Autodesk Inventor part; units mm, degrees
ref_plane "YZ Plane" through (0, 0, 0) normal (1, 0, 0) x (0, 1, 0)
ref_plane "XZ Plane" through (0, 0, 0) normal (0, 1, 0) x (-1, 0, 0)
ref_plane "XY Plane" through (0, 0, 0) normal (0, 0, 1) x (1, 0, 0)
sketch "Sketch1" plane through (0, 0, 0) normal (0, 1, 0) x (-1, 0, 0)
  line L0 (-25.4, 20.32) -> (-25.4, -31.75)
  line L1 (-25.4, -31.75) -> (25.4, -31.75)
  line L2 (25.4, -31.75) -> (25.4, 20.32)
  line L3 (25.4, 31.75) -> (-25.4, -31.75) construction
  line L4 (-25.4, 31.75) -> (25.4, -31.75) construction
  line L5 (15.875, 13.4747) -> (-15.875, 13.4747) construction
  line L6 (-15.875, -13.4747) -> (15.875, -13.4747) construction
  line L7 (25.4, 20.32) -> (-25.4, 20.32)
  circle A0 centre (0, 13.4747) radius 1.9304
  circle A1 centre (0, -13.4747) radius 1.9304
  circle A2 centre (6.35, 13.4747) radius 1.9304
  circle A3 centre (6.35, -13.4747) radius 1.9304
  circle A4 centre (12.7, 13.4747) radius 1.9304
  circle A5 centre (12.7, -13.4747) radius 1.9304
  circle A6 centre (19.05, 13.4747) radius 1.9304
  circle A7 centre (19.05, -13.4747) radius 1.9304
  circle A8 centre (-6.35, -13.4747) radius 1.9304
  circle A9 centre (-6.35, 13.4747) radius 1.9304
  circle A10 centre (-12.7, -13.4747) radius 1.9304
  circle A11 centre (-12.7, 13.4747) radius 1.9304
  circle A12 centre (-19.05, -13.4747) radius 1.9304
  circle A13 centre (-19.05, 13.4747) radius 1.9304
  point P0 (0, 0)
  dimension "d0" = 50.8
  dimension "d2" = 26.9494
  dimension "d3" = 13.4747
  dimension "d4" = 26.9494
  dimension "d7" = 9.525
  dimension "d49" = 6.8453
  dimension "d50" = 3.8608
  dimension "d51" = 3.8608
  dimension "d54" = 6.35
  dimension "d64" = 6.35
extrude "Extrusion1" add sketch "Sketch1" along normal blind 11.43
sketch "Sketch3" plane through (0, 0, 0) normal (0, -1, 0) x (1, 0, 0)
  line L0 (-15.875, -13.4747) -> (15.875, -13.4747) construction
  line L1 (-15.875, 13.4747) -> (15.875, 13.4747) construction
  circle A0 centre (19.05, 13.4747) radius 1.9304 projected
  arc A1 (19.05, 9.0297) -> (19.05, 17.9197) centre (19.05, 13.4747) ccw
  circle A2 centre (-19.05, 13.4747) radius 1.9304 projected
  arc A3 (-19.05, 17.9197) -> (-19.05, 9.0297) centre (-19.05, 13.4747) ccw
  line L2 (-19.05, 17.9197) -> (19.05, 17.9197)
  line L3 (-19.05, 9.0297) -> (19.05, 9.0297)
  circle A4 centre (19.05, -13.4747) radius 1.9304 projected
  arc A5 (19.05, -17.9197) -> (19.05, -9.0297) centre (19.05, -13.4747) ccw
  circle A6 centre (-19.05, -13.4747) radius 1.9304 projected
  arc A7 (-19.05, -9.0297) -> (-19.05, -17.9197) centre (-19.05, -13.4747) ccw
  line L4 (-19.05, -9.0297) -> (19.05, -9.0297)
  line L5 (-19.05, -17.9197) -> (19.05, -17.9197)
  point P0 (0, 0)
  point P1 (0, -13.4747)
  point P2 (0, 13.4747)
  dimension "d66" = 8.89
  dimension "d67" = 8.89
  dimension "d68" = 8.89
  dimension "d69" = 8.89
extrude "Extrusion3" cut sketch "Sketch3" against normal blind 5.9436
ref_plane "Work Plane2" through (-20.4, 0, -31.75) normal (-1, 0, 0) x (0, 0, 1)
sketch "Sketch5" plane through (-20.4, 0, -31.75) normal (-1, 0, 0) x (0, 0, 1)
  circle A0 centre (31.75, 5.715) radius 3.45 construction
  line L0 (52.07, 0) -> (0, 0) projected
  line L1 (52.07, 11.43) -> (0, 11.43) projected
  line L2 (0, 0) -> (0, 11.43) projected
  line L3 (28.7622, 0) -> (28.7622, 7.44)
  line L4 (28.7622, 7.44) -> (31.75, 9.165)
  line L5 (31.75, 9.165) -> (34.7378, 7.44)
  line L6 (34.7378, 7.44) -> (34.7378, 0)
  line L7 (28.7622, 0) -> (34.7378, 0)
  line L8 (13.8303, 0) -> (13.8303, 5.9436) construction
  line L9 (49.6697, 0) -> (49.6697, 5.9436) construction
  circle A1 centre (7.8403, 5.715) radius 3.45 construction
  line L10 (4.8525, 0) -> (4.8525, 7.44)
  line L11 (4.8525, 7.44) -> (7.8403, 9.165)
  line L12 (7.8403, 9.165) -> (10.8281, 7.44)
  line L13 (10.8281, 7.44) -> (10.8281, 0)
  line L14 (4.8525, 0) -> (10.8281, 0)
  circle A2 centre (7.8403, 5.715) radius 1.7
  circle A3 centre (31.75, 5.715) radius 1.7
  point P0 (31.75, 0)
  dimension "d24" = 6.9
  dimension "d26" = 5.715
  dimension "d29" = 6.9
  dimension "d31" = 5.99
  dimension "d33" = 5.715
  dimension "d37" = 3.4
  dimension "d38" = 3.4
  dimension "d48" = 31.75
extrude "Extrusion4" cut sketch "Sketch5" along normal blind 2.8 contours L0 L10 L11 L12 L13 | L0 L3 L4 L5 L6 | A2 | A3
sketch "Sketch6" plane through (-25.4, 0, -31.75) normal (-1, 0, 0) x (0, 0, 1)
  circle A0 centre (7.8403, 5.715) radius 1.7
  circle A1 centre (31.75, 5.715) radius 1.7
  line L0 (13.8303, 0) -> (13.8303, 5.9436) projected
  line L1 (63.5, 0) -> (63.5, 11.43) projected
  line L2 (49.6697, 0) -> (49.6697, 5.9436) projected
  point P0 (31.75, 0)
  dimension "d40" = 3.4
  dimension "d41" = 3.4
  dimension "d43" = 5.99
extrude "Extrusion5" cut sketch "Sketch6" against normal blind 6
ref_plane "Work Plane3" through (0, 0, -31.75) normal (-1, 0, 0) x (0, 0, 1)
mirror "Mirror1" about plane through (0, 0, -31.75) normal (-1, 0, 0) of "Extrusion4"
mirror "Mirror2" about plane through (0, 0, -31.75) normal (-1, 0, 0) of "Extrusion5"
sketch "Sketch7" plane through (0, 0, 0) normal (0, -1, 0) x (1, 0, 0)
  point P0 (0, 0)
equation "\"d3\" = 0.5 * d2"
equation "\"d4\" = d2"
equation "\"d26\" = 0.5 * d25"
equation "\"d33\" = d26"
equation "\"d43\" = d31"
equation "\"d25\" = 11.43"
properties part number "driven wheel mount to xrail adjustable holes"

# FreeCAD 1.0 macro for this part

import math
import FreeCAD as App
import Part
import Sketcher

V = App.Vector
Q = App.Units.Quantity

doc = App.newDocument("Part")
params = doc.addObject("Spreadsheet::Sheet", "Params")
for row, (alias, value) in enumerate([
    ("sketch1_width", "2 in"),
    ("sketch1_diameter", "0.152 in"),
    ("sketch1_height", "2.05 in"),
    ("pad1_length", "0.45 in"),
    ("sketch2_radius", "0.175 in"),
    ("sketch2_diameter", "0.152 in"),
    ("sketch2_width", "1.5 in"),
    ("pocket1_length", "0.234 in"),
    ("pocket2_length", "2.8 mm"),
    ("pocket3_length", "6 mm"),
], start=1):
    params.set(f"A{row}", alias)
    params.set(f"B{row}", "=" + value)
    params.setAlias(f"B{row}", alias)

body = doc.addObject("PartDesign::Body", "Body")

# Sketch on XZ plane
sketch1 = body.newObject("Sketcher::SketchObject", "Sketch")
sketch1.AttachmentSupport = (doc.getObject("XZ_Plane"), [""])
sketch1.MapMode = "FlatFace"
sketch1.addGeometry(Part.LineSegment(V(-25.4, 20.3, 0), V(25.4, 20.3, 0)), False)
sketch1.addGeometry(Part.LineSegment(V(25.4, 20.3, 0), V(25.4, -31.8, 0)), False)
sketch1.addGeometry(Part.LineSegment(V(25.4, -31.8, 0), V(-25.4, -31.8, 0)), False)
sketch1.addGeometry(Part.LineSegment(V(-25.4, -31.8, 0), V(-25.4, 20.3, 0)), False)
sketch1.addGeometry(Part.Circle(V(19.1, -13.5, 0), V(0, 0, 1), 1.9), False)
sketch1.addGeometry(Part.Circle(V(12.7, -13.5, 0), V(0, 0, 1), 1.9), False)
sketch1.addGeometry(Part.Circle(V(6.3, -13.5, 0), V(0, 0, 1), 1.9), False)
sketch1.addGeometry(Part.Circle(V(0, -13.5, 0), V(0, 0, 1), 1.9), False)
sketch1.addGeometry(Part.Circle(V(-6.3, -13.5, 0), V(0, 0, 1), 1.9), False)
sketch1.addGeometry(Part.Circle(V(-12.7, -13.5, 0), V(0, 0, 1), 1.9), False)
sketch1.addGeometry(Part.Circle(V(-19.1, -13.5, 0), V(0, 0, 1), 1.9), False)
sketch1.addGeometry(Part.Circle(V(19.1, 13.5, 0), V(0, 0, 1), 1.9), False)
sketch1.addGeometry(Part.Circle(V(12.7, 13.5, 0), V(0, 0, 1), 1.9), False)
sketch1.addGeometry(Part.Circle(V(6.3, 13.5, 0), V(0, 0, 1), 1.9), False)
sketch1.addGeometry(Part.Circle(V(0, 13.5, 0), V(0, 0, 1), 1.9), False)
sketch1.addGeometry(Part.Circle(V(-6.3, 13.5, 0), V(0, 0, 1), 1.9), False)
sketch1.addGeometry(Part.Circle(V(-12.7, 13.5, 0), V(0, 0, 1), 1.9), False)
sketch1.addGeometry(Part.Circle(V(-19.1, 13.5, 0), V(0, 0, 1), 1.9), False)
sketch1.addConstraint(Sketcher.Constraint("Coincident", 0, 2, 1, 1))
sketch1.addConstraint(Sketcher.Constraint("Coincident", 1, 2, 2, 1))
sketch1.addConstraint(Sketcher.Constraint("Coincident", 2, 2, 3, 1))
sketch1.addConstraint(Sketcher.Constraint("Coincident", 3, 2, 0, 1))
sketch1.addConstraint(Sketcher.Constraint("Horizontal", 0))
sketch1.addConstraint(Sketcher.Constraint("Vertical", 1))
sketch1.addConstraint(Sketcher.Constraint("Horizontal", 2))
sketch1.addConstraint(Sketcher.Constraint("Vertical", 3))
sketch1.addConstraint(Sketcher.Constraint("Equal", 4, 5))
sketch1.addConstraint(Sketcher.Constraint("Equal", 5, 6))
sketch1.addConstraint(Sketcher.Constraint("Equal", 6, 7))
sketch1.addConstraint(Sketcher.Constraint("Equal", 7, 8))
sketch1.addConstraint(Sketcher.Constraint("Equal", 8, 9))
sketch1.addConstraint(Sketcher.Constraint("Equal", 9, 10))
sketch1.addConstraint(Sketcher.Constraint("Equal", 10, 11))
sketch1.addConstraint(Sketcher.Constraint("Equal", 11, 12))
sketch1.addConstraint(Sketcher.Constraint("Equal", 12, 13))
sketch1.addConstraint(Sketcher.Constraint("Equal", 13, 14))
sketch1.addConstraint(Sketcher.Constraint("Equal", 14, 15))
sketch1.addConstraint(Sketcher.Constraint("Equal", 15, 16))
sketch1.addConstraint(Sketcher.Constraint("Equal", 16, 17))
sketch1.addConstraint(Sketcher.Constraint("Symmetric", 10, 3, 11, 3, -1, 1))
sketch1.addConstraint(Sketcher.Constraint("Symmetric", 9, 3, 12, 3, -1, 1))
sketch1.addConstraint(Sketcher.Constraint("Symmetric", 8, 3, 13, 3, -1, 1))
sketch1.addConstraint(Sketcher.Constraint("Symmetric", 7, 3, 14, 3, -1, 1))
sketch1.addConstraint(Sketcher.Constraint("Symmetric", 6, 3, 15, 3, -1, 1))
sketch1.addConstraint(Sketcher.Constraint("Symmetric", 5, 3, 16, 3, -1, 1))
sketch1.addConstraint(Sketcher.Constraint("Symmetric", 4, 3, 17, 3, -1, 1))
sketch1.addConstraint(Sketcher.Constraint("Symmetric", 6, 3, 8, 3, -2))
sketch1.addConstraint(Sketcher.Constraint("Symmetric", 5, 3, 9, 3, -2))
sketch1.addConstraint(Sketcher.Constraint("Symmetric", 4, 3, 10, 3, -2))
sketch1.addConstraint(Sketcher.Constraint("PointOnObject", 7, 3, -2))
sketch1.addConstraint(Sketcher.Constraint("Horizontal", 4, 3, 5, 3))
sketch1.addConstraint(Sketcher.Constraint("Horizontal", 5, 3, 6, 3))
sketch1.addConstraint(Sketcher.Constraint("Horizontal", 6, 3, 7, 3))
sketch1.addConstraint(Sketcher.Constraint("DistanceX", 0, 1, 0, 2, Q("2 in")))
sketch1.addConstraint(Sketcher.Constraint("Diameter", 4, Q("0.152 in")))
sketch1.addConstraint(Sketcher.Constraint("DistanceX", -1, 1, 0, 2, Q("1 in")))
sketch1.addConstraint(Sketcher.Constraint("DistanceX", 8, 3, 4, 3, Q("1 in")))
sketch1.addConstraint(Sketcher.Constraint("DistanceX", 9, 3, 5, 3, Q("1 in")))
sketch1.addConstraint(Sketcher.Constraint("DistanceX", -1, 1, 6, 3, Q("0.25 in")))
sketch1.addConstraint(Sketcher.Constraint("DistanceY", 4, 3, 11, 3, Q("1.061 in")))
sketch1.addConstraint(Sketcher.Constraint("DistanceY", 1, 2, 1, 1, Q("2.05 in")))
sketch1.addConstraint(Sketcher.Constraint("DistanceY", -1, 1, 0, 2, Q("0.8 in")))
sketch1.setExpression("Constraints[35]", "Params.sketch1_width")
sketch1.setExpression("Constraints[36]", "Params.sketch1_diameter")
sketch1.setExpression("Constraints[42]", "Params.sketch1_height")
pad1 = body.newObject("PartDesign::Pad", "Pad")
pad1.Profile = sketch1
pad1.setExpression("Length", "Params.pad1_length")
pad1.Reversed = True

# Sketch on XZ plane
sketch2 = body.newObject("Sketcher::SketchObject", "Sketch001")
sketch2.AttachmentSupport = (doc.getObject("XZ_Plane"), [""])
sketch2.MapMode = "FlatFace"
sketch2.addGeometry(Part.LineSegment(V(-19.1, 9, 0), V(19.1, 9, 0)), False)
sketch2.addGeometry(Part.ArcOfCircle(Part.Circle(V(19.1, 13.5, 0), V(0, 0, 1), 4.4), math.radians(-90), math.radians(90)), False)
sketch2.addGeometry(Part.LineSegment(V(19.1, 17.9, 0), V(-19.1, 17.9, 0)), False)
sketch2.addGeometry(Part.ArcOfCircle(Part.Circle(V(-19.1, 13.5, 0), V(0, 0, 1), 4.4), math.radians(90), math.radians(270)), False)
sketch2.addGeometry(Part.Circle(V(-19.1, 13.5, 0), V(0, 0, 1), 1.9), False)
sketch2.addGeometry(Part.Circle(V(19.1, 13.5, 0), V(0, 0, 1), 1.9), False)
sketch2.addGeometry(Part.LineSegment(V(-19.1, -17.9, 0), V(19.1, -17.9, 0)), False)
sketch2.addGeometry(Part.ArcOfCircle(Part.Circle(V(19.1, -13.5, 0), V(0, 0, 1), 4.4), math.radians(-90), math.radians(90)), False)
sketch2.addGeometry(Part.LineSegment(V(19.1, -9, 0), V(-19.1, -9, 0)), False)
sketch2.addGeometry(Part.ArcOfCircle(Part.Circle(V(-19.1, -13.5, 0), V(0, 0, 1), 4.4), math.radians(90), math.radians(270)), False)
sketch2.addGeometry(Part.Circle(V(-19.1, -13.5, 0), V(0, 0, 1), 1.9), False)
sketch2.addGeometry(Part.Circle(V(19.1, -13.5, 0), V(0, 0, 1), 1.9), False)
sketch2.addConstraint(Sketcher.Constraint("Tangent", 0, 2, 1, 1))
sketch2.addConstraint(Sketcher.Constraint("Tangent", 1, 2, 2, 1))
sketch2.addConstraint(Sketcher.Constraint("Tangent", 2, 2, 3, 1))
sketch2.addConstraint(Sketcher.Constraint("Tangent", 3, 2, 0, 1))
sketch2.addConstraint(Sketcher.Constraint("Tangent", 6, 2, 7, 1))
sketch2.addConstraint(Sketcher.Constraint("Tangent", 7, 2, 8, 1))
sketch2.addConstraint(Sketcher.Constraint("Tangent", 8, 2, 9, 1))
sketch2.addConstraint(Sketcher.Constraint("Tangent", 9, 2, 6, 1))
sketch2.addConstraint(Sketcher.Constraint("Horizontal", 0))
sketch2.addConstraint(Sketcher.Constraint("Horizontal", 2))
sketch2.addConstraint(Sketcher.Constraint("Horizontal", 6))
sketch2.addConstraint(Sketcher.Constraint("Horizontal", 8))
sketch2.addConstraint(Sketcher.Constraint("Coincident", 4, 3, 3, 3))
sketch2.addConstraint(Sketcher.Constraint("Coincident", 5, 3, 1, 3))
sketch2.addConstraint(Sketcher.Constraint("Coincident", 10, 3, 9, 3))
sketch2.addConstraint(Sketcher.Constraint("Coincident", 11, 3, 7, 3))
sketch2.addConstraint(Sketcher.Constraint("Equal", 4, 5))
sketch2.addConstraint(Sketcher.Constraint("Equal", 3, 7))
sketch2.addConstraint(Sketcher.Constraint("Equal", 5, 10))
sketch2.addConstraint(Sketcher.Constraint("Equal", 10, 11))
sketch2.addConstraint(Sketcher.Constraint("Symmetric", 3, 3, 7, 3, -1, 1))
sketch2.addConstraint(Sketcher.Constraint("Vertical", 5, 3, 7, 3))
sketch2.addConstraint(Sketcher.Constraint("Vertical", 4, 3, 9, 3))
sketch2.addConstraint(Sketcher.Constraint("Radius", 1, Q("0.175 in")))
sketch2.addConstraint(Sketcher.Constraint("Diameter", 4, Q("0.152 in")))
sketch2.addConstraint(Sketcher.Constraint("DistanceX", 0, 1, 0, 2, Q("1.5 in")))
sketch2.addConstraint(Sketcher.Constraint("DistanceY", 7, 3, 1, 3, Q("1.061 in")))
sketch2.setExpression("Constraints[23]", "Params.sketch2_radius")
sketch2.setExpression("Constraints[24]", "Params.sketch2_diameter")
sketch2.setExpression("Constraints[25]", "Params.sketch2_width")
pocket1 = body.newObject("PartDesign::Pocket", "Pocket")
pocket1.Profile = sketch2
pocket1.setExpression("Length", "Params.pocket1_length")

# Sketch on YZ plane
sketch3 = body.newObject("Sketcher::SketchObject", "Sketch002")
sketch3.AttachmentSupport = (doc.getObject("YZ_Plane"), [""])
sketch3.MapMode = "FlatFace"
sketch3.AttachmentOffset = App.Placement(V(0, 0, -20.4), App.Rotation())
sketch3.addGeometry(Part.LineSegment(V(0, -26.9, 0), V(0, -20.9, 0)), False)
sketch3.addGeometry(Part.LineSegment(V(0, -20.9, 0), V(7.4, -20.9, 0)), False)
sketch3.addGeometry(Part.LineSegment(V(7.4, -20.9, 0), V(9.2, -23.9, 0)), False)
sketch3.addGeometry(Part.LineSegment(V(9.2, -23.9, 0), V(7.4, -26.9, 0)), False)
sketch3.addGeometry(Part.LineSegment(V(7.4, -26.9, 0), V(0, -26.9, 0)), False)
sketch3.addGeometry(Part.LineSegment(V(0, -3, 0), V(0, 3, 0)), False)
sketch3.addGeometry(Part.LineSegment(V(0, 3, 0), V(7.4, 3, 0)), False)
sketch3.addGeometry(Part.LineSegment(V(7.4, 3, 0), V(9.2, 0, 0)), False)
sketch3.addGeometry(Part.LineSegment(V(9.2, 0, 0), V(7.4, -3, 0)), False)
sketch3.addGeometry(Part.LineSegment(V(7.4, -3, 0), V(0, -3, 0)), False)
sketch3.addConstraint(Sketcher.Constraint("Coincident", 0, 2, 1, 1))
sketch3.addConstraint(Sketcher.Constraint("Coincident", 1, 2, 2, 1))
sketch3.addConstraint(Sketcher.Constraint("Coincident", 2, 2, 3, 1))
sketch3.addConstraint(Sketcher.Constraint("Coincident", 3, 2, 4, 1))
sketch3.addConstraint(Sketcher.Constraint("Coincident", 4, 2, 0, 1))
sketch3.addConstraint(Sketcher.Constraint("Coincident", 5, 2, 6, 1))
sketch3.addConstraint(Sketcher.Constraint("Coincident", 6, 2, 7, 1))
sketch3.addConstraint(Sketcher.Constraint("Coincident", 7, 2, 8, 1))
sketch3.addConstraint(Sketcher.Constraint("Coincident", 8, 2, 9, 1))
sketch3.addConstraint(Sketcher.Constraint("Coincident", 9, 2, 5, 1))
sketch3.addConstraint(Sketcher.Constraint("Vertical", 0))
sketch3.addConstraint(Sketcher.Constraint("Horizontal", 1))
sketch3.addConstraint(Sketcher.Constraint("Horizontal", 4))
sketch3.addConstraint(Sketcher.Constraint("Vertical", 5))
sketch3.addConstraint(Sketcher.Constraint("Horizontal", 6))
sketch3.addConstraint(Sketcher.Constraint("Horizontal", 9))
sketch3.addConstraint(Sketcher.Constraint("Symmetric", 5, 2, 9, 2, -1, 1))
sketch3.addConstraint(Sketcher.Constraint("PointOnObject", 0, 2, -2))
sketch3.addConstraint(Sketcher.Constraint("PointOnObject", 7, 2, -1))
sketch3.addConstraint(Sketcher.Constraint("Parallel", 2, 7))
sketch3.addConstraint(Sketcher.Constraint("Parallel", 3, 8))
sketch3.addConstraint(Sketcher.Constraint("Vertical", 1, 2, 3, 2))
sketch3.addConstraint(Sketcher.Constraint("Vertical", 3, 2, 6, 2))
sketch3.addConstraint(Sketcher.Constraint("Vertical", 2, 2, 7, 2))
sketch3.addConstraint(Sketcher.Constraint("Vertical", 6, 2, 8, 2))
sketch3.addConstraint(Sketcher.Constraint("Angle", 2, Q("-60 deg")))
sketch3.addConstraint(Sketcher.Constraint("DistanceX", 1, 1, 1, 2, 7.44))
sketch3.addConstraint(Sketcher.Constraint("DistanceY", 0, 1, 0, 2, 5.9756))
sketch3.addConstraint(Sketcher.Constraint("DistanceY", 0, 2, -1, 1, Q("0.8237 in")))
pocket2 = body.newObject("PartDesign::Pocket", "Pocket001")
pocket2.Profile = sketch3
pocket2.setExpression("Length", "Params.pocket2_length")

# Sketch on YZ plane
sketch4 = body.newObject("Sketcher::SketchObject", "Sketch003")
sketch4.AttachmentSupport = (doc.getObject("YZ_Plane"), [""])
sketch4.MapMode = "FlatFace"
sketch4.AttachmentOffset = App.Placement(V(0, 0, -1 * 25.4), App.Rotation())
sketch4.addGeometry(Part.Circle(V(5.7, -23.9, 0), V(0, 0, 1), 1.7), False)
sketch4.addGeometry(Part.Circle(V(5.7, 0, 0), V(0, 0, 1), 1.7), False)
sketch4.addConstraint(Sketcher.Constraint("Equal", 0, 1))
sketch4.addConstraint(Sketcher.Constraint("PointOnObject", 1, 3, -1))
sketch4.addConstraint(Sketcher.Constraint("Vertical", 0, 3, 1, 3))
sketch4.addConstraint(Sketcher.Constraint("Diameter", 0, 3.4))
sketch4.addConstraint(Sketcher.Constraint("DistanceX", -1, 1, 0, 3, Q("0.225 in")))
sketch4.addConstraint(Sketcher.Constraint("DistanceY", 0, 3, -1, 1, 23.9097))
pocket3 = body.newObject("PartDesign::Pocket", "Pocket002")
pocket3.Profile = sketch4
pocket3.setExpression("Length", "Params.pocket3_length")
pocket3.Reversed = True
doc.recompute()

mirrored = body.newObject("PartDesign::Mirrored", "Mirrored")
mirrored.Originals = [pocket2]
mirrored.MirrorPlane = (doc.getObject("YZ_Plane"), [""])
body.Tip = mirrored
doc.recompute()

mirrored2 = body.newObject("PartDesign::Mirrored", "Mirrored001")
mirrored2.Originals = [pocket3]
mirrored2.MirrorPlane = (doc.getObject("YZ_Plane"), [""])
body.Tip = mirrored2

doc.recompute()
